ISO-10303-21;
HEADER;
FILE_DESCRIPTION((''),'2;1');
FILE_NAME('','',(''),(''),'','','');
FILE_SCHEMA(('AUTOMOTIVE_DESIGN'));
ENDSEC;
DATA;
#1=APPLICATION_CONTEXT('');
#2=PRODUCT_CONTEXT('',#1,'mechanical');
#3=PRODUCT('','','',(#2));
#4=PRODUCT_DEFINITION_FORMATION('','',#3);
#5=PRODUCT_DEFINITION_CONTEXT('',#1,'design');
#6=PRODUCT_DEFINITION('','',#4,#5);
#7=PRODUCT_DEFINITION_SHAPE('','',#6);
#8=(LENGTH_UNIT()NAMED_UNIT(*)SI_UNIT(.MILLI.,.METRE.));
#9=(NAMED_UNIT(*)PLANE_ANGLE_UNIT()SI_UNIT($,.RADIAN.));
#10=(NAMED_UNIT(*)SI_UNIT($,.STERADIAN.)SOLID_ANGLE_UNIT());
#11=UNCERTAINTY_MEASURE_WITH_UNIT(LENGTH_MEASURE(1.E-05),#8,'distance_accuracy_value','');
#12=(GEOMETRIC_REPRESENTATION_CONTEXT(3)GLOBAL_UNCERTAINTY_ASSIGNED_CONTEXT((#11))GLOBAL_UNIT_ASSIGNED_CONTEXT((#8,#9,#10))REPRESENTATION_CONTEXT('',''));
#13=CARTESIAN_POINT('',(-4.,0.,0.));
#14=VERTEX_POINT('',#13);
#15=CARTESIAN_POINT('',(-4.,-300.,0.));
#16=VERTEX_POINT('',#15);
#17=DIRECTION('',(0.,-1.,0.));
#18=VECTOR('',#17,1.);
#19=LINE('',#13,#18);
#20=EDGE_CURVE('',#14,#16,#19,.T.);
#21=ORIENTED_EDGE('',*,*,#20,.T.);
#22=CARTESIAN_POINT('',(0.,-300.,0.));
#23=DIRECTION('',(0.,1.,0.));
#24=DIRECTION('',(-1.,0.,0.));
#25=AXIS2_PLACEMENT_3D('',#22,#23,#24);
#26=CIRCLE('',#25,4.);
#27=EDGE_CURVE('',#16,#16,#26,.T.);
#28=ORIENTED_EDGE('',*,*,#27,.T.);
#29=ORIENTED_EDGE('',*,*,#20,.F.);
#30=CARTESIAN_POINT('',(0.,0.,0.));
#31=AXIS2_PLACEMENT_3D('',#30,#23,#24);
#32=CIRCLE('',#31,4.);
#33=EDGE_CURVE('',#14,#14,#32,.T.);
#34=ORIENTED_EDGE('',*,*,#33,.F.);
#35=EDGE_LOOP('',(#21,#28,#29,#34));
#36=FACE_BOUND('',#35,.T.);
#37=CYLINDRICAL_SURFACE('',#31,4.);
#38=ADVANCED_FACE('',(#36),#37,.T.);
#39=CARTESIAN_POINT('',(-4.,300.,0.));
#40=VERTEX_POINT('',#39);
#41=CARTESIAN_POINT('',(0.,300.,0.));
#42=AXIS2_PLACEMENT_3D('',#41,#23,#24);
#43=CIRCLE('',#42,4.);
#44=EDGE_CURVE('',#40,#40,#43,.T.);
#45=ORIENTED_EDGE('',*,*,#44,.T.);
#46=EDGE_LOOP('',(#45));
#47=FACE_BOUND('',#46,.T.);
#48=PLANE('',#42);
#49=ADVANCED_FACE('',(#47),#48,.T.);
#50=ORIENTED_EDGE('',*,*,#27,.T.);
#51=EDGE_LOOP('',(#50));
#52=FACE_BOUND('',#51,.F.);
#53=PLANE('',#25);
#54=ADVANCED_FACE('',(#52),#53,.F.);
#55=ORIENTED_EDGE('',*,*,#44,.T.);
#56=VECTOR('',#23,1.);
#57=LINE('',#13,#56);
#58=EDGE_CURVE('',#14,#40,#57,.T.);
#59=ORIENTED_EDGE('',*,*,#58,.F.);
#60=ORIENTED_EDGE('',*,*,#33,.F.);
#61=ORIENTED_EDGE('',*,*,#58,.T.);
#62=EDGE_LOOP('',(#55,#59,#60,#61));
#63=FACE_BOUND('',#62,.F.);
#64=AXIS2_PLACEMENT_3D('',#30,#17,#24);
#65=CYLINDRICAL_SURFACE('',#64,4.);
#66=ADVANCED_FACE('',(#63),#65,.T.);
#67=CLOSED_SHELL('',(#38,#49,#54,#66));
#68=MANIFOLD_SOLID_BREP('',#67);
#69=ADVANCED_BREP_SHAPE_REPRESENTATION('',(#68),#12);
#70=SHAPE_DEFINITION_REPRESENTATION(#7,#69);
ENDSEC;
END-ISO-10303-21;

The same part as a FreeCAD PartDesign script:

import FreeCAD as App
import Part
import Sketcher
from FreeCAD import Vector

doc = App.newDocument("Part")
body = doc.addObject("PartDesign::Body", "Body")

# Sketch on XZ plane
sketch1 = body.newObject("Sketcher::SketchObject", "Sketch")
sketch1.AttachmentSupport = (doc.getObject("XZ_Plane"), [""])
sketch1.MapMode = "FlatFace"
sketch1.addGeometry(Part.Circle(Vector(0, 0, 0), Vector(0, 0, 1), 4), False)
sketch1.addConstraint([
    Sketcher.Constraint("Coincident", 0, 3, -1, 1),
    Sketcher.Constraint("Diameter", 0, 8.0),
])
pad1 = body.newObject("PartDesign::Pad", "Pad")
pad1.Profile = sketch1
pad1.Length = 600
pad1.Midplane = True

doc.recompute()
